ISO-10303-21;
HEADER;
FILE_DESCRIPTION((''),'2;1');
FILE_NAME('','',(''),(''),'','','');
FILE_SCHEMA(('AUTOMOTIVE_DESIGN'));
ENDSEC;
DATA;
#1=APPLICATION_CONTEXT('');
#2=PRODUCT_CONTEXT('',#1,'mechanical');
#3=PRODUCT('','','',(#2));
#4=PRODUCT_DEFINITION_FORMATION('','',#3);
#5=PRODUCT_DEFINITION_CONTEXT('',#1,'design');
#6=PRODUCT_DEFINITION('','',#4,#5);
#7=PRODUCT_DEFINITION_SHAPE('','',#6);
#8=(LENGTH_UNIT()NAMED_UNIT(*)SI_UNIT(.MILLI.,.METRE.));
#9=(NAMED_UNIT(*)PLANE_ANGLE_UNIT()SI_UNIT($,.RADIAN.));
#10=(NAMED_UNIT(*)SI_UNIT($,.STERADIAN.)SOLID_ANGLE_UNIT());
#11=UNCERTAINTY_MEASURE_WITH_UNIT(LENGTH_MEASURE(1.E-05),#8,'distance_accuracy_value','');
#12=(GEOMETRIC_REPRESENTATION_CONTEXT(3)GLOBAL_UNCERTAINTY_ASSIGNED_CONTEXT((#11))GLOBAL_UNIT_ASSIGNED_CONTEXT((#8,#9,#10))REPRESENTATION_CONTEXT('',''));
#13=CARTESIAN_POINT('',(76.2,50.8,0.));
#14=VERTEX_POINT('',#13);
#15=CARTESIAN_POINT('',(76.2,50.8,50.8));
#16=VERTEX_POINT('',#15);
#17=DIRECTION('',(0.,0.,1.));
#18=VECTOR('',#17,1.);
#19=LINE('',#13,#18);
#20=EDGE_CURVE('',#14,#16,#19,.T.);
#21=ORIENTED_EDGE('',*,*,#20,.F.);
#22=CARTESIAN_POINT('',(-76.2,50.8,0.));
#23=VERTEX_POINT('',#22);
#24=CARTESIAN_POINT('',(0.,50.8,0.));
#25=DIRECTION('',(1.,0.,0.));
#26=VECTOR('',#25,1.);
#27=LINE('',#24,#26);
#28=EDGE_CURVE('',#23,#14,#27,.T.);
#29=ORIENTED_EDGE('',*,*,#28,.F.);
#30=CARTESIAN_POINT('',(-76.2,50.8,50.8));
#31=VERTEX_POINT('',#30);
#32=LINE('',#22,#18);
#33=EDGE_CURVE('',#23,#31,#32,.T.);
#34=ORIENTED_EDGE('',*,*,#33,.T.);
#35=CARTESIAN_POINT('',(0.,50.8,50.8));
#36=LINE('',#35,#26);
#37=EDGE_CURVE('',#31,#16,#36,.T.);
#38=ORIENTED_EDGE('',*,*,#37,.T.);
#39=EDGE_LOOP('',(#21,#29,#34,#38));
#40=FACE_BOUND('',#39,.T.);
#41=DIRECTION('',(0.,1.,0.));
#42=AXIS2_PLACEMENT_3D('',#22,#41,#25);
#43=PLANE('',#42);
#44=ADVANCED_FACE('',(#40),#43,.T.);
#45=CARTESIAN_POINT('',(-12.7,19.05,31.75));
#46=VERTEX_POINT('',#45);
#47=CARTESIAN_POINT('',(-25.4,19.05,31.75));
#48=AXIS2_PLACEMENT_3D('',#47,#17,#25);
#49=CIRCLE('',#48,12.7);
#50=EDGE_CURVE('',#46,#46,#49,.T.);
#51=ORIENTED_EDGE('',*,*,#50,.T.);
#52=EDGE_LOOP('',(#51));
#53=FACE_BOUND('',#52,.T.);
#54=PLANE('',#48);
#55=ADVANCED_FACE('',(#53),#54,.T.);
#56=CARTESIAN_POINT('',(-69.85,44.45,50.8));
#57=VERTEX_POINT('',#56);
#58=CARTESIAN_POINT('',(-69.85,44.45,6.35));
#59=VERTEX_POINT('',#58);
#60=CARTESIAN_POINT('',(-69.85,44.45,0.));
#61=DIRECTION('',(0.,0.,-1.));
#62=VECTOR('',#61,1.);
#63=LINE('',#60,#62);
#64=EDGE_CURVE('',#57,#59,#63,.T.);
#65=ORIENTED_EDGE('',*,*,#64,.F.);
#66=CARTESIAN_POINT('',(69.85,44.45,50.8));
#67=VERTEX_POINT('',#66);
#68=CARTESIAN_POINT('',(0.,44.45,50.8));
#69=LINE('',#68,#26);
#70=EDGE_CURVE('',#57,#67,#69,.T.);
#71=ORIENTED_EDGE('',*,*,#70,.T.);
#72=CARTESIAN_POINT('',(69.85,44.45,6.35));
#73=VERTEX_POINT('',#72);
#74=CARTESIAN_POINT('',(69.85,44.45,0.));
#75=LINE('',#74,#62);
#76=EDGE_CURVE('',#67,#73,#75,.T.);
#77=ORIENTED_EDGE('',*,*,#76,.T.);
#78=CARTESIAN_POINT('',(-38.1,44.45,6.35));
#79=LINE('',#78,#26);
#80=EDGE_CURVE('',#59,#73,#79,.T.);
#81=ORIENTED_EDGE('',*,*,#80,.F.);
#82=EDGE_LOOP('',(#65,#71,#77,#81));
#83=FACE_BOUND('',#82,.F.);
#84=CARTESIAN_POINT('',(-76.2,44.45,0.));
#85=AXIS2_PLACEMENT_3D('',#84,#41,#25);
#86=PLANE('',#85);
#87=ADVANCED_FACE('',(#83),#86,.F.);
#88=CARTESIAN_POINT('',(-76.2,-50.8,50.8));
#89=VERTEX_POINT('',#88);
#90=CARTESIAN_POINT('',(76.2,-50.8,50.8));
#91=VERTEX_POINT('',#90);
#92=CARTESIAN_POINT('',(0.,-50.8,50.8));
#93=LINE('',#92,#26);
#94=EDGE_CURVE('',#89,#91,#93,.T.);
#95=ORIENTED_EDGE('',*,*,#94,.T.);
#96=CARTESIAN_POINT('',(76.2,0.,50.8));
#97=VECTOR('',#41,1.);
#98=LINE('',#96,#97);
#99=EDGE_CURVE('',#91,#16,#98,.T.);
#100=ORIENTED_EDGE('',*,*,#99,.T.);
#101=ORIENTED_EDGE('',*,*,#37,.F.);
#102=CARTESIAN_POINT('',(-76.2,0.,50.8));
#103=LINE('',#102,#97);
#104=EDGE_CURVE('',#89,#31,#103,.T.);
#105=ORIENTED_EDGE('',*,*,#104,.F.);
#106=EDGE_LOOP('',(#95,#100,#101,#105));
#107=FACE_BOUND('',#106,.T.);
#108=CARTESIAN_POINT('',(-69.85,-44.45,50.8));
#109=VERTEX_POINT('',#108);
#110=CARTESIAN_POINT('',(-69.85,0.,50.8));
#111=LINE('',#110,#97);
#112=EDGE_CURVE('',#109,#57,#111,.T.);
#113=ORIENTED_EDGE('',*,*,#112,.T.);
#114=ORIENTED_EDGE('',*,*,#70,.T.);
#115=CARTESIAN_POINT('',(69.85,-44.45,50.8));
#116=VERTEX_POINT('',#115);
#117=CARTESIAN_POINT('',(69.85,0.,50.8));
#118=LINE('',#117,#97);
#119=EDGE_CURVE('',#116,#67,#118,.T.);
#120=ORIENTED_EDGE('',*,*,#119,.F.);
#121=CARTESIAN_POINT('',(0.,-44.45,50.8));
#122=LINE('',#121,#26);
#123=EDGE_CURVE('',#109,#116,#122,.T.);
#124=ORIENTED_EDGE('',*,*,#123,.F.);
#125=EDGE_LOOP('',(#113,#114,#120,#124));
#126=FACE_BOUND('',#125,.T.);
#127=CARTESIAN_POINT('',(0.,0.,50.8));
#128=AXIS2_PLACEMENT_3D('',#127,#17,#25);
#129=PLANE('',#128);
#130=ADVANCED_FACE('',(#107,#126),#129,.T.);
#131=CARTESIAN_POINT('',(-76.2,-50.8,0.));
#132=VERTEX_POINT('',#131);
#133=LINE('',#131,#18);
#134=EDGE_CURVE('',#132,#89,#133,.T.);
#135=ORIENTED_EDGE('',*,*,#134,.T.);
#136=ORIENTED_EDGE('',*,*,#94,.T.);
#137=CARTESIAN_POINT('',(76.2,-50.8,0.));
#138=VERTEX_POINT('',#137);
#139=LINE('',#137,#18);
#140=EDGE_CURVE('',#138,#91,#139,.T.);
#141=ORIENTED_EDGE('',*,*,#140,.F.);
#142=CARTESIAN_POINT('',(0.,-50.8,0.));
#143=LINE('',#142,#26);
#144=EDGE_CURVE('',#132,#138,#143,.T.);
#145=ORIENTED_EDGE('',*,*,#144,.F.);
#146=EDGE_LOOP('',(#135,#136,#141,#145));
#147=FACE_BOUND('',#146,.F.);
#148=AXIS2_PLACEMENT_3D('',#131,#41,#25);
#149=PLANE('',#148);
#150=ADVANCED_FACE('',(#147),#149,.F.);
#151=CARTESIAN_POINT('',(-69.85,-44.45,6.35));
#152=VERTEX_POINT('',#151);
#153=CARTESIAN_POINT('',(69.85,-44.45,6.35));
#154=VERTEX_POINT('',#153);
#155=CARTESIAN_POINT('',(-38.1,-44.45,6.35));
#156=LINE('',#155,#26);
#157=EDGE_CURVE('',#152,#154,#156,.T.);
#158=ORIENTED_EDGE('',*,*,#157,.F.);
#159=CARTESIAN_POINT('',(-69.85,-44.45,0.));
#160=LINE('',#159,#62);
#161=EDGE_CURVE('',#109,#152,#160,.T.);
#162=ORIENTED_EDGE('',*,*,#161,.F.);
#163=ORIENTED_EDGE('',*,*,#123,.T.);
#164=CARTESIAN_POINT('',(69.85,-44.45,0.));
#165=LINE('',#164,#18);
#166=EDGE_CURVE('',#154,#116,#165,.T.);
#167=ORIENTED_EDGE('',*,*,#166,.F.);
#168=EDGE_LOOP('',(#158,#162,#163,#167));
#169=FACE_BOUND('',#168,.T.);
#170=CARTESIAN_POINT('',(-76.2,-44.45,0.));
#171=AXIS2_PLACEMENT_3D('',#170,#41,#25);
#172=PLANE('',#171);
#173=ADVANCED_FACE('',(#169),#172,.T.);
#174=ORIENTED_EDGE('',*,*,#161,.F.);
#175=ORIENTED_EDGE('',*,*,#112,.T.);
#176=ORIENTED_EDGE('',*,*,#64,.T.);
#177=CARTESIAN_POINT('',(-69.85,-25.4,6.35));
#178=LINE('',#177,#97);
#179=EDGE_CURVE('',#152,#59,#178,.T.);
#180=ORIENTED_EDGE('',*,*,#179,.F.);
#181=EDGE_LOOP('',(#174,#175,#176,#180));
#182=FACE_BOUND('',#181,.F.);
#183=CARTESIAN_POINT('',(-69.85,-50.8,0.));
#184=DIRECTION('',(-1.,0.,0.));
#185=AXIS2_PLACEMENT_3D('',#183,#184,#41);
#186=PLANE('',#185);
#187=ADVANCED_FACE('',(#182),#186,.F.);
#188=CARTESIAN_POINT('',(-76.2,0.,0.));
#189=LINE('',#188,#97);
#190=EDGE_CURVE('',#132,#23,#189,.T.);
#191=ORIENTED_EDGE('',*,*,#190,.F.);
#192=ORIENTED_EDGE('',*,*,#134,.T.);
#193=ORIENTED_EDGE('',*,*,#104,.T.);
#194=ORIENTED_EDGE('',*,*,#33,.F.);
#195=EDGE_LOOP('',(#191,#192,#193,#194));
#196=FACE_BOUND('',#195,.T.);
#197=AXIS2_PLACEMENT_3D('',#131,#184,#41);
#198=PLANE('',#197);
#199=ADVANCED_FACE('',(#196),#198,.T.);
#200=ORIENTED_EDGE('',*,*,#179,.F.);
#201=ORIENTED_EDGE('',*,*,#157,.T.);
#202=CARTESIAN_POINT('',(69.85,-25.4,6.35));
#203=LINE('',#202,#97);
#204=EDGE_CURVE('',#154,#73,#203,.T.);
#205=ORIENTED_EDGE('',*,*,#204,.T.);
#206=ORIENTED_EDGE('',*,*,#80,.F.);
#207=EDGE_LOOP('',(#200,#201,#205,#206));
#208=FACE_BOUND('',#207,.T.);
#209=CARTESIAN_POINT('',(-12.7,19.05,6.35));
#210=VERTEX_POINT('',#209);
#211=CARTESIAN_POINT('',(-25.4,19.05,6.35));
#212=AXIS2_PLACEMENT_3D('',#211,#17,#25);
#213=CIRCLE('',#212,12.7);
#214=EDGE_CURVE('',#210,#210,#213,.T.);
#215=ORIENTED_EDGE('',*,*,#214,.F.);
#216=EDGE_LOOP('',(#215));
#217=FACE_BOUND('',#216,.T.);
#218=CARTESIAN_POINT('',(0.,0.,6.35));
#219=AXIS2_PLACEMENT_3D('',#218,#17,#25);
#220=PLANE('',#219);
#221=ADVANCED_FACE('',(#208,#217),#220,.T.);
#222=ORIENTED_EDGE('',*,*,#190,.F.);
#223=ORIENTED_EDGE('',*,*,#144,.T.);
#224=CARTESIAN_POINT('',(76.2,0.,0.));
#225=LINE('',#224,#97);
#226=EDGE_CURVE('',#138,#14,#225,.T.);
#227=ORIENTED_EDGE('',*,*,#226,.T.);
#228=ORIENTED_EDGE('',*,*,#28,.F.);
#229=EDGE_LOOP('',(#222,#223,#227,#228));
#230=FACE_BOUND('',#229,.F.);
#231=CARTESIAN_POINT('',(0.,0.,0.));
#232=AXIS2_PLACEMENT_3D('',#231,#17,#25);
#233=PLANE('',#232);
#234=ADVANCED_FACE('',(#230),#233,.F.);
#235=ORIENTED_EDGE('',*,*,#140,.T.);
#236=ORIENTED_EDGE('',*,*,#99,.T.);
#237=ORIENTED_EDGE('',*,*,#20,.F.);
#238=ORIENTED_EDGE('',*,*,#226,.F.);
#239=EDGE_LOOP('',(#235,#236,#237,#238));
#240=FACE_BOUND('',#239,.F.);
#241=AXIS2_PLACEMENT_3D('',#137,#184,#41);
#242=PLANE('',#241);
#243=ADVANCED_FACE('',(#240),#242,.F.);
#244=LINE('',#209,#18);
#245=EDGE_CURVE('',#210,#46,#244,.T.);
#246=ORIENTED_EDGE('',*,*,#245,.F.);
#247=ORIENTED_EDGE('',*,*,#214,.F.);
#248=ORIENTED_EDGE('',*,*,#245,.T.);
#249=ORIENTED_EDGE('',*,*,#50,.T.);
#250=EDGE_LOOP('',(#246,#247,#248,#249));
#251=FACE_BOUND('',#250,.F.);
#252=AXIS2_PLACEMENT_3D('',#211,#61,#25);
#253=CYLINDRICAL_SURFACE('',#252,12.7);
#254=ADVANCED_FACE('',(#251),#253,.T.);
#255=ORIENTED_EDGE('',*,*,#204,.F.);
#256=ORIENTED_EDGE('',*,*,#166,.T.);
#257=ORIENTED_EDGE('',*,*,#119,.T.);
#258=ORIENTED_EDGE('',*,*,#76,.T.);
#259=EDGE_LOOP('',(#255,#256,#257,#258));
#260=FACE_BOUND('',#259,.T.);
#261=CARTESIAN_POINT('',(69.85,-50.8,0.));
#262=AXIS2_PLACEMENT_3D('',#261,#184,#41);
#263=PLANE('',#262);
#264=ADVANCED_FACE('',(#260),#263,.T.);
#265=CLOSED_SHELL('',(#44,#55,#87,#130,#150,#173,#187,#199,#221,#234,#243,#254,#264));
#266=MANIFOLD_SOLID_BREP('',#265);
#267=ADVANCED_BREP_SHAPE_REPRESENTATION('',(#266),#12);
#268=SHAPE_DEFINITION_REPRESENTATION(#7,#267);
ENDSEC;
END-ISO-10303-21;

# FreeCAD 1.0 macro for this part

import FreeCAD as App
import Part
import Sketcher
from FreeCAD import Vector
Q = App.Units.Quantity


def faces_at(feature, points):
    """Names of the faces that lie closest to the given points."""
    faces = feature.Shape.Faces
    near = lambda p: min(range(len(faces)), key=lambda i: faces[i].distToShape(Part.Vertex(*p))[0])
    return sorted({f"Face{near(p) + 1}" for p in points})


def add_polygon(sketch, points):
    """Adds a closed chain of lines whose ends are joined by coincident constraints."""
    first, n = sketch.GeometryCount, len(points)
    for a, b in zip(points, points[1:] + points[:1]):
        sketch.addGeometry(Part.LineSegment(App.Vector(*a, 0), App.Vector(*b, 0)), False)
    for i in range(n):
        sketch.addConstraint(Sketcher.Constraint("Coincident", first + i, 2, first + (i + 1) % n, 1))

doc = App.newDocument("Part")
params = doc.addObject("Spreadsheet::Sheet", "Params")
for row, (alias, value) in enumerate([
    ("sketch1_width", "6 in"),
    ("sketch1_height", "4 in"),
    ("pad1_length", "2 in"),
    ("thickness_wall", "0.25 in"),
    ("sketch2_diameter", "1 in"),
    ("pad2_length", "1 in"),
], start=1):
    params.set(f"A{row}", alias)
    params.set(f"B{row}", "=" + value)
    params.setAlias(f"B{row}", alias)

body = doc.addObject("PartDesign::Body", "Body")

# Sketch on XY plane
sketch1 = doc.addObject("Sketcher::SketchObject", "Sketch")
body.addObject(sketch1)
sketch1.AttachmentSupport = (doc.XY_Plane, [""])
sketch1.MapMode = "FlatFace"
add_polygon(sketch1, [(-76, 51), (-76, -51), (76, -51), (76, 51)])  # lines 0-3
sketch1.addConstraint(Sketcher.Constraint("Vertical", 0))
sketch1.addConstraint(Sketcher.Constraint("Horizontal", 1))
sketch1.addConstraint(Sketcher.Constraint("Vertical", 2))
sketch1.addConstraint(Sketcher.Constraint("Horizontal", 3))
sketch1.addConstraint(Sketcher.Constraint("Symmetric", 0, 2, 2, 2, -1, 1))
sketch1.addConstraint(Sketcher.Constraint("DistanceX", 1, 1, 1, 2, Q("6 in")))
sketch1.addConstraint(Sketcher.Constraint("DistanceY", 0, 2, 0, 1, Q("4 in")))
sketch1.setExpression("Constraints[9]", "Params.sketch1_width")
sketch1.setExpression("Constraints[10]", "Params.sketch1_height")
pad1 = doc.addObject("PartDesign::Pad", "Pad")
body.addObject(pad1)
pad1.Profile = sketch1
pad1.setExpression("Length", "Params.pad1_length")
doc.recompute()

thickness = doc.addObject("PartDesign::Thickness", "Thickness")
body.addObject(thickness)
thickness.Base = (pad1, faces_at(pad1, [(0, 0, 50.8)]))
thickness.setExpression("Value", "Params.thickness_wall")
thickness.Reversed = True
thickness.Join = "Arc"

# Sketch on XY plane
sketch2 = doc.addObject("Sketcher::SketchObject", "Sketch001")
body.addObject(sketch2)
sketch2.AttachmentSupport = (doc.XY_Plane, [""])
sketch2.MapMode = "FlatFace"
sketch2.AttachmentOffset = App.Placement(Vector(0, 0, 0.25 * 25.4), App.Rotation())
sketch2.addGeometry(Part.Circle(Vector(-25, 19, 0), Vector(0, 0, 1), 13), False)
sketch2.addConstraint(Sketcher.Constraint("Diameter", 0, Q("1 in")))
sketch2.addConstraint(Sketcher.Constraint("DistanceX", 0, 3, -1, 1, Q("1 in")))
sketch2.addConstraint(Sketcher.Constraint("DistanceY", -1, 1, 0, 3, Q("0.75 in")))
sketch2.setExpression("Constraints[0]", "Params.sketch2_diameter")
pad2 = doc.addObject("PartDesign::Pad", "Pad001")
body.addObject(pad2)
pad2.Profile = sketch2
pad2.setExpression("Length", "Params.pad2_length")

doc.recompute()
